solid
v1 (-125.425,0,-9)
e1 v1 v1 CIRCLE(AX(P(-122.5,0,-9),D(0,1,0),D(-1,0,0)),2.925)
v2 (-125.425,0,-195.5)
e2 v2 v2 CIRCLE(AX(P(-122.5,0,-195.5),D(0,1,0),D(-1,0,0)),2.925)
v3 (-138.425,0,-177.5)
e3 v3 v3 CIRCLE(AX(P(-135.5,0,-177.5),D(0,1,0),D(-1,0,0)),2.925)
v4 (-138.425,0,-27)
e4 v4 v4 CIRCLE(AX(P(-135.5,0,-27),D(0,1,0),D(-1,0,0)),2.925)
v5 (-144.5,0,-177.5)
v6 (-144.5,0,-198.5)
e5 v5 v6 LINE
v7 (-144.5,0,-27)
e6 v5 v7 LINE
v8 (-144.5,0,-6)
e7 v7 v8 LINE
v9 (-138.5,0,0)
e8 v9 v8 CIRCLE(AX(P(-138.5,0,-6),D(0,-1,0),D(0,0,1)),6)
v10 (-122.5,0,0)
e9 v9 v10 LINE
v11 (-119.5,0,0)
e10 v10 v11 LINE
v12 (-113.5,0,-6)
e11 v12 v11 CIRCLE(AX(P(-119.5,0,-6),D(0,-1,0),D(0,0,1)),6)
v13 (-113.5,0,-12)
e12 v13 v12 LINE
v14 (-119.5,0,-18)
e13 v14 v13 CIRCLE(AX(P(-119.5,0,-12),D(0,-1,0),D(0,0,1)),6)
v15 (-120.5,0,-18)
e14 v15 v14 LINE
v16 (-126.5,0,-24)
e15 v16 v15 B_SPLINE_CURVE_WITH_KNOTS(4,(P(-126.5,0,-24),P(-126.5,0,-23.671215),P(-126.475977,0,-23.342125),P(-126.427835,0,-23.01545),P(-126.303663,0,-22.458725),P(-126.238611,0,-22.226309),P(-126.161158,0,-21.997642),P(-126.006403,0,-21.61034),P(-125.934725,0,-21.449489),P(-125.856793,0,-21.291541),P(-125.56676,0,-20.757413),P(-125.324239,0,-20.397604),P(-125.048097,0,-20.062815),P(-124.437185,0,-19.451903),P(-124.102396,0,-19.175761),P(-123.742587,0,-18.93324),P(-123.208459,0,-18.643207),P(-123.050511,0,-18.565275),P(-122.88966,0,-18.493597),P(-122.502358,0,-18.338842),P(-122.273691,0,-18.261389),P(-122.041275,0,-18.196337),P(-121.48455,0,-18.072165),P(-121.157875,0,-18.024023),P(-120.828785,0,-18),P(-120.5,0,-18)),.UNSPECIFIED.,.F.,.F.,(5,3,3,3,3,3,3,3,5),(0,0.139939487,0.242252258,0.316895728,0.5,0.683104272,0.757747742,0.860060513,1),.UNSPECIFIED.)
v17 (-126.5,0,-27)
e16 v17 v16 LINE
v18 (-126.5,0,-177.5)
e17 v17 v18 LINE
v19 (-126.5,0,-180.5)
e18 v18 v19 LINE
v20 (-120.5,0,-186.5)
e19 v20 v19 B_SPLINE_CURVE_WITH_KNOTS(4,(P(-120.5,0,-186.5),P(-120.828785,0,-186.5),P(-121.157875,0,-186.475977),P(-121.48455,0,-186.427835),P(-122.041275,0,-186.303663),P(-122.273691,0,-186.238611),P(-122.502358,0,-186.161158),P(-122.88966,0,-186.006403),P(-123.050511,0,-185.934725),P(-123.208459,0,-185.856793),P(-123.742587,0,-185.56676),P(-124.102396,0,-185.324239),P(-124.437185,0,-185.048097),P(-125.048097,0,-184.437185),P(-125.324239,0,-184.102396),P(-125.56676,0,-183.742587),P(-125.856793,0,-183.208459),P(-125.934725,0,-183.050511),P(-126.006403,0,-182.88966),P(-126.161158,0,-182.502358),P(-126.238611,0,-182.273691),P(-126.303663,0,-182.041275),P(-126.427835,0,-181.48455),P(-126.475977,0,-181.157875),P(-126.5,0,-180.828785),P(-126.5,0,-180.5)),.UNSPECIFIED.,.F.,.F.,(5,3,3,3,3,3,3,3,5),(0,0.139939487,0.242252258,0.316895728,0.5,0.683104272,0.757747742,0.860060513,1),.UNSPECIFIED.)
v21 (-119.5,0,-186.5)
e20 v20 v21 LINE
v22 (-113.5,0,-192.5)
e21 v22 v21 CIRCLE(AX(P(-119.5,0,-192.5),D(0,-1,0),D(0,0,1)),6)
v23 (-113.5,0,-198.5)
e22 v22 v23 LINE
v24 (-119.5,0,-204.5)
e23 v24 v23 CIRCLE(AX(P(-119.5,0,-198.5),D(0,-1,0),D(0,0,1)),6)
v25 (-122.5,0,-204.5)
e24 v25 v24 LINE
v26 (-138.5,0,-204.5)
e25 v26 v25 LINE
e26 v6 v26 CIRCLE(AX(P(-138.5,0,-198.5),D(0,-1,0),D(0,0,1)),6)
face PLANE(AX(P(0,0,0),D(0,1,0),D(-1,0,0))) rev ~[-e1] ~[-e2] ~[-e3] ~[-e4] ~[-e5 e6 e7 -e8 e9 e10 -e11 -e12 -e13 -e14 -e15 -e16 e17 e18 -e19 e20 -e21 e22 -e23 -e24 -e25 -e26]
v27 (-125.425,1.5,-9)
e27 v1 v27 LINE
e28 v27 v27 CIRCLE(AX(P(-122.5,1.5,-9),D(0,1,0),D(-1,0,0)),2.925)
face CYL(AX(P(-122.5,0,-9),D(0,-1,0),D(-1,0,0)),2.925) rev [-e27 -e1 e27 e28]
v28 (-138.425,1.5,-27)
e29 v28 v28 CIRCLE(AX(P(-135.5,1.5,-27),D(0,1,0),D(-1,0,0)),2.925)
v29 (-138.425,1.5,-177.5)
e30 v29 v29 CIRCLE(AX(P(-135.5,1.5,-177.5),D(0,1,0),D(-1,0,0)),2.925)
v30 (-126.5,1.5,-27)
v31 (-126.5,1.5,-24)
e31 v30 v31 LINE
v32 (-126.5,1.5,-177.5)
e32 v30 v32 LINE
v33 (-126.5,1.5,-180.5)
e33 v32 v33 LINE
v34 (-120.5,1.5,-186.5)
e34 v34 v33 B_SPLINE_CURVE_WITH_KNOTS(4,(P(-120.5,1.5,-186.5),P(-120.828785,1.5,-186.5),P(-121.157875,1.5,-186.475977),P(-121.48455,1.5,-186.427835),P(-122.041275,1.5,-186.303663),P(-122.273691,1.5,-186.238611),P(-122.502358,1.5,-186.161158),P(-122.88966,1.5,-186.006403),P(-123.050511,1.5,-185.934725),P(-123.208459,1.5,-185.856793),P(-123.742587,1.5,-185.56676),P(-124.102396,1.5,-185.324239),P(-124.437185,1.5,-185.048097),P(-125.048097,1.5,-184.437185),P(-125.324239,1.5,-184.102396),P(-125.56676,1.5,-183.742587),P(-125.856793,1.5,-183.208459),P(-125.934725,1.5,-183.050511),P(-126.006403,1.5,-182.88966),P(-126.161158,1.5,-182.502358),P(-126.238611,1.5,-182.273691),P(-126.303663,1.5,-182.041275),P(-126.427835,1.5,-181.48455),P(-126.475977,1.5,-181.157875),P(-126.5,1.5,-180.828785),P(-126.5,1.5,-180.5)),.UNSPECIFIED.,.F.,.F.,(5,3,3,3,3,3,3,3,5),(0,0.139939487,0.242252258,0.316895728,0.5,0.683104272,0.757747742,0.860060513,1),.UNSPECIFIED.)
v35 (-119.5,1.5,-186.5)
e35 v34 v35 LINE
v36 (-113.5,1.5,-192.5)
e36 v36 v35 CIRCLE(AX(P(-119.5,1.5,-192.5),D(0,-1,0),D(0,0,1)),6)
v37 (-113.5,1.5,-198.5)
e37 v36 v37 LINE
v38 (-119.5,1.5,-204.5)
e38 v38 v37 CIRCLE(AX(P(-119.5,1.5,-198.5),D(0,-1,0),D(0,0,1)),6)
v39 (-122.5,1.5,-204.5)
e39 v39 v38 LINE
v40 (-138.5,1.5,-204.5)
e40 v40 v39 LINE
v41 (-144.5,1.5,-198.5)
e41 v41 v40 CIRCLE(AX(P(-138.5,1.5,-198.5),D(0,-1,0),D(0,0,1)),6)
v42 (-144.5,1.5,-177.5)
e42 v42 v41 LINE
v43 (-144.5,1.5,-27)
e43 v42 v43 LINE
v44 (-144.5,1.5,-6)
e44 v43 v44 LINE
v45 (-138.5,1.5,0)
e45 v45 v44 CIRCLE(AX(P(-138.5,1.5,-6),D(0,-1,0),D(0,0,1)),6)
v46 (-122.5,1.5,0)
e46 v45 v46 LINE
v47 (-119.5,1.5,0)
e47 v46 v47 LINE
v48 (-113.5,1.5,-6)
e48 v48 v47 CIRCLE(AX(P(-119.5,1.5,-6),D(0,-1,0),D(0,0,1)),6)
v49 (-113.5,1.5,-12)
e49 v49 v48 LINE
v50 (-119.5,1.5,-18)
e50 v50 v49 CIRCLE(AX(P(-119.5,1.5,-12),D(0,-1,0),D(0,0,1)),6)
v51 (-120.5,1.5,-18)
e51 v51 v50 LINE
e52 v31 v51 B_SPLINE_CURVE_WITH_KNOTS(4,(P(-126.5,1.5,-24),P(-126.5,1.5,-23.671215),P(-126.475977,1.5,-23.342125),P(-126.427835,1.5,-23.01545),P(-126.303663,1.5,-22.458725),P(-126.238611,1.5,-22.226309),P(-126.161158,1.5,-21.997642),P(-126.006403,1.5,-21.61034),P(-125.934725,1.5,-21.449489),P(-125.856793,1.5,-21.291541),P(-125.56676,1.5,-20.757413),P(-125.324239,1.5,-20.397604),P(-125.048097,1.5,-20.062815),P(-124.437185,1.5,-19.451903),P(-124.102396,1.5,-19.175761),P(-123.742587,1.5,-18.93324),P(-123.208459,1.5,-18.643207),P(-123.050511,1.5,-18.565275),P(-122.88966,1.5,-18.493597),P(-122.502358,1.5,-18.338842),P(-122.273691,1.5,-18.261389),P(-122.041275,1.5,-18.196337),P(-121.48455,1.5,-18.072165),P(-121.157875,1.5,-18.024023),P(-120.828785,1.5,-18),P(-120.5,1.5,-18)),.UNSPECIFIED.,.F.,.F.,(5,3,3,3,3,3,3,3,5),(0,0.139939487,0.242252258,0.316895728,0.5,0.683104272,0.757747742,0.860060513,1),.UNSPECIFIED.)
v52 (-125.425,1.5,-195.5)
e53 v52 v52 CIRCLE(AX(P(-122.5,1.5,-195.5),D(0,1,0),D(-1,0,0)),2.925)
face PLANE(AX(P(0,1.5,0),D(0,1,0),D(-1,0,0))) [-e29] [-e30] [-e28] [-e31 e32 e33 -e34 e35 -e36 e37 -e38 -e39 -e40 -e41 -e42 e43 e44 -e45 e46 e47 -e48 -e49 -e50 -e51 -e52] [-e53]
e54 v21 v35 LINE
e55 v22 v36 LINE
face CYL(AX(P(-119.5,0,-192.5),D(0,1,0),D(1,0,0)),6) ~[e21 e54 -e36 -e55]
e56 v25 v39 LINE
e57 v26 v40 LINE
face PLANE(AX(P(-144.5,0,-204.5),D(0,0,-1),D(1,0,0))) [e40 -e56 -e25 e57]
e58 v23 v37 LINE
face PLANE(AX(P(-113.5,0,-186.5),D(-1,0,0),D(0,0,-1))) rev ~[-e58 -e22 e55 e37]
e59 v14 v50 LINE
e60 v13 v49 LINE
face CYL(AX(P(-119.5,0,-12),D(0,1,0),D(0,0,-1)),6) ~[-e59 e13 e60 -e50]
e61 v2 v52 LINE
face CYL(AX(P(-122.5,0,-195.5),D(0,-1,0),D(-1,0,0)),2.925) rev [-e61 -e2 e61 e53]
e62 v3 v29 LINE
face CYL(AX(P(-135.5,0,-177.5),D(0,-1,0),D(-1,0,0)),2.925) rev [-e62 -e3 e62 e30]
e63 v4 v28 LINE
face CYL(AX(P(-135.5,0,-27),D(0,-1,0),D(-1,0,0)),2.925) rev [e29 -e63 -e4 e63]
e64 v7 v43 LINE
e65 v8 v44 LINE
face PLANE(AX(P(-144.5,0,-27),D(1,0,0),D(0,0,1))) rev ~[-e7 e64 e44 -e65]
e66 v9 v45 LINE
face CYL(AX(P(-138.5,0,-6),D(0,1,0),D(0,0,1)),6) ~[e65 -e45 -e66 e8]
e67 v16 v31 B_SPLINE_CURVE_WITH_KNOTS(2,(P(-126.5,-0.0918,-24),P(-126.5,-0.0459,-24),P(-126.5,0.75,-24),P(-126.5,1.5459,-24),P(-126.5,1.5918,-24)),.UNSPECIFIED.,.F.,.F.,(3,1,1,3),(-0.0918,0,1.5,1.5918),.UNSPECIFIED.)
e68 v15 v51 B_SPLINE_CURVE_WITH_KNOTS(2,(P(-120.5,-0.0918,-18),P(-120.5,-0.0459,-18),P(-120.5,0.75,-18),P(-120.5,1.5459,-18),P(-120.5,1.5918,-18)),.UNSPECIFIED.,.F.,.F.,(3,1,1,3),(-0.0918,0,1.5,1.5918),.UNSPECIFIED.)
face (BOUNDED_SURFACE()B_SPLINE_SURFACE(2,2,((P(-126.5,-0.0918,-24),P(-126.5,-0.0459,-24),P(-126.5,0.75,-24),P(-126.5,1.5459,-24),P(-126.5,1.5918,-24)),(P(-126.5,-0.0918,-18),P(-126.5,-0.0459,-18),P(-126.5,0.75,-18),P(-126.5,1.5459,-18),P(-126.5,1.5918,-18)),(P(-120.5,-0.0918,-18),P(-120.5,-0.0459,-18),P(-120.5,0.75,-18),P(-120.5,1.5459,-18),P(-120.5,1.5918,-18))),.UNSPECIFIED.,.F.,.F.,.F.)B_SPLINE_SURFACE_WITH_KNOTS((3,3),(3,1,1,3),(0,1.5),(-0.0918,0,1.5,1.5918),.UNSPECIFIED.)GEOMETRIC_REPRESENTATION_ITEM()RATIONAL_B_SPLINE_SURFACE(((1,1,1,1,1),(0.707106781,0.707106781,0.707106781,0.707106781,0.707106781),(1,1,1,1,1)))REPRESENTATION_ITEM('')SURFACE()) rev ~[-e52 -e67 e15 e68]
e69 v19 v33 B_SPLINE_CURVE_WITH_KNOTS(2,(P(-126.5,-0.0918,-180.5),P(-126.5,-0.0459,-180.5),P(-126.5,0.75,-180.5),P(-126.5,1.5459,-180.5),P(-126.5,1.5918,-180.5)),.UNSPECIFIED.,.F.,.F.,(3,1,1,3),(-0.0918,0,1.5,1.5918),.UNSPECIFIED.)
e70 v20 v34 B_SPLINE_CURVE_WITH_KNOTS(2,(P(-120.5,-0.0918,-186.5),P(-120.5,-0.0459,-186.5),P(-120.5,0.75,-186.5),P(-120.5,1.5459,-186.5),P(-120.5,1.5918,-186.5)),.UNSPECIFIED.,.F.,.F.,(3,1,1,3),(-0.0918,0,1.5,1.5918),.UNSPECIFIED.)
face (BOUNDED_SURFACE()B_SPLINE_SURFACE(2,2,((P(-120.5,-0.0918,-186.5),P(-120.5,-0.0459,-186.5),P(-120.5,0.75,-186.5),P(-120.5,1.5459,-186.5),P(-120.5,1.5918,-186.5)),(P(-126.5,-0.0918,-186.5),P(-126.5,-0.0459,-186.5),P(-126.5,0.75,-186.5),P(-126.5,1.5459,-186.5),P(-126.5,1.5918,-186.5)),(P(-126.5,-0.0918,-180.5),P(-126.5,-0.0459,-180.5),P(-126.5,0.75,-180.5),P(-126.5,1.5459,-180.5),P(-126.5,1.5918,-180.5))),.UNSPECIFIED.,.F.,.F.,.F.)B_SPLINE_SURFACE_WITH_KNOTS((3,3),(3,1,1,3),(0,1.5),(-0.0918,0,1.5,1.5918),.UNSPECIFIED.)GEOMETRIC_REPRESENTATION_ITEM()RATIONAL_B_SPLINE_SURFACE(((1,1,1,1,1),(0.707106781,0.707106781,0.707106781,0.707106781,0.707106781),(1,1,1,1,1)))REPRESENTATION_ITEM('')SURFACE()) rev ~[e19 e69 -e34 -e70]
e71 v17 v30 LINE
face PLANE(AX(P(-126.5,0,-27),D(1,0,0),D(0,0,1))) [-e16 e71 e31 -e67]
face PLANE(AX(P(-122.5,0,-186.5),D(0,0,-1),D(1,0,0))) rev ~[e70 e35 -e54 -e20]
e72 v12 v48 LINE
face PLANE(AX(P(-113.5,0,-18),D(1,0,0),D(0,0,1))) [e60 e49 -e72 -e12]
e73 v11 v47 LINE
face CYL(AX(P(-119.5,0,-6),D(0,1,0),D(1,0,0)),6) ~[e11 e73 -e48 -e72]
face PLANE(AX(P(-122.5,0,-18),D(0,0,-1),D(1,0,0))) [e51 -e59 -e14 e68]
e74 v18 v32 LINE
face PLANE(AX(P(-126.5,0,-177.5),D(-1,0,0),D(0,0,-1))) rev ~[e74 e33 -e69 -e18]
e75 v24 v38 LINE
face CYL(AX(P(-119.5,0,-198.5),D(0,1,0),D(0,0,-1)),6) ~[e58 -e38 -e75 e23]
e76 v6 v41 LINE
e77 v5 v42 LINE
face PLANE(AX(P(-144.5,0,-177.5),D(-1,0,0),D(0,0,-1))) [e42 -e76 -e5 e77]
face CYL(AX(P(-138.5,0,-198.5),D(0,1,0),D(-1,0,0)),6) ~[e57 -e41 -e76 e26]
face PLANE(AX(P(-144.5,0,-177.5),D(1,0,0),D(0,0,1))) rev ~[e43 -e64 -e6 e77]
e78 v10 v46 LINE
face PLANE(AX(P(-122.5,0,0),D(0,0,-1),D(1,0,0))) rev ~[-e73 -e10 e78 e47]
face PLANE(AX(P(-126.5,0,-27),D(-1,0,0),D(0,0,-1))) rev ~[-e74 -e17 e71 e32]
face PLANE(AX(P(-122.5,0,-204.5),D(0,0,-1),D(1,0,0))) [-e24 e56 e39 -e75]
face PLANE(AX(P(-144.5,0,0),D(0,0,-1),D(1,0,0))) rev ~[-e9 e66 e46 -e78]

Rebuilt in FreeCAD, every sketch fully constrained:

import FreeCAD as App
import Part
import Sketcher
from FreeCAD import Vector


def edges_at(feature, points):
    """Names of the edges that pass closest to the given points."""
    edges = feature.Shape.Edges
    near = lambda p: min(range(len(edges)), key=lambda i: edges[i].distToShape(Part.Vertex(*p))[0])
    return sorted({f"Edge{near(p) + 1}" for p in points})


def add_polygon(sketch, points):
    """Adds a closed chain of lines whose ends are joined by coincident constraints."""
    first, n = sketch.GeometryCount, len(points)
    for a, b in zip(points, points[1:] + points[:1]):
        sketch.addGeometry(Part.LineSegment(App.Vector(*a, 0), App.Vector(*b, 0)), False)
    for i in range(n):
        sketch.addConstraint(Sketcher.Constraint("Coincident", first + i, 2, first + (i + 1) % n, 1))

doc = App.newDocument("Part")
body = doc.addObject("PartDesign::Body", "Body")

# Sketch on XZ plane
sketch1 = body.newObject("Sketcher::SketchObject", "Sketch")
sketch1.AttachmentSupport = (doc.getObject("XZ_Plane"), [""])
sketch1.MapMode = "FlatFace"
add_polygon(sketch1, [(-126.5, -18), (-126.5, -186.5), (-113.5, -186.5), (-113.5, -204.5), (-144.5, -204.5), (-144.5, 0), (-113.5, 0), (-113.5, -18)])  # lines 0-7
sketch1.addGeometry(Part.Circle(Vector(-122.5, -195.5, 0), Vector(0, 0, 1), 2.925), False)  # 8
sketch1.addGeometry(Part.Circle(Vector(-135.5, -177.5, 0), Vector(0, 0, 1), 2.925), False)  # 9
sketch1.addGeometry(Part.Circle(Vector(-135.5, -27, 0), Vector(0, 0, 1), 2.925), False)  # 10
sketch1.addGeometry(Part.Circle(Vector(-122.5, -9, 0), Vector(0, 0, 1), 2.925), False)  # 11
sketch1.addConstraint([
    Sketcher.Constraint("Vertical", 0),
    Sketcher.Constraint("Horizontal", 1),
    Sketcher.Constraint("Vertical", 2),
    Sketcher.Constraint("Horizontal", 3),
    Sketcher.Constraint("Vertical", 4),
    Sketcher.Constraint("Horizontal", 5),
    Sketcher.Constraint("Vertical", 6),
    Sketcher.Constraint("Horizontal", 7),
    Sketcher.Constraint("Equal", 8, 9),
    Sketcher.Constraint("Equal", 9, 10),
    Sketcher.Constraint("Equal", 10, 11),
    Sketcher.Constraint("PointOnObject", 4, 2, -1),
    Sketcher.Constraint("Vertical", 9, 3, 10, 3),
    Sketcher.Constraint("Vertical", 8, 3, 11, 3),
    Sketcher.Constraint("Vertical", 2, 2, 5, 2),
    Sketcher.Constraint("Equal", 2, 6),
    Sketcher.Constraint("DistanceY", 4, 1, 4, 2, 204.5),
    Sketcher.Constraint("DistanceY", 11, 3, -1, 1, 9.0),
    Sketcher.Constraint("DistanceX", 0, 2, 8, 3, 4.0),
    Sketcher.Constraint("DistanceY", 8, 3, 0, 2, 9.0),
    Sketcher.Constraint("DistanceX", 9, 3, 0, 2, 9.0),
    Sketcher.Constraint("DistanceY", 0, 2, 9, 3, 9.0),
    Sketcher.Constraint("DistanceX", 8, 3, 1, 2, 9.0),
    Sketcher.Constraint("DistanceY", 2, 2, 8, 3, 9.0),
    Sketcher.Constraint("DistanceX", 3, 2, 9, 3, 9.0),
    Sketcher.Constraint("DistanceY", 10, 3, 6, 2, 9.0),
    Sketcher.Constraint("DistanceX", 3, 2, -1, 1, 144.5),
    Sketcher.Constraint("Diameter", 8, 5.85),
])
pad1 = body.newObject("PartDesign::Pad", "Pad")
pad1.Profile = sketch1
pad1.Length = 1.5
pad1.Reversed = True
doc.recompute()

fillet = body.newObject("PartDesign::Fillet", "Fillet")
fillet.Base = (pad1, edges_at(pad1, [
    (-144.5, 0.75, 0),
    (-113.5, 0.75, 0),
    (-113.5, 0.75, -18),
    (-126.5, 0.75, -18),
    (-126.5, 0.75, -186.5),
    (-113.5, 0.75, -186.5),
    (-113.5, 0.75, -204.5),
    (-144.5, 0.75, -204.5),
]))
fillet.Radius = 6

doc.recompute()
